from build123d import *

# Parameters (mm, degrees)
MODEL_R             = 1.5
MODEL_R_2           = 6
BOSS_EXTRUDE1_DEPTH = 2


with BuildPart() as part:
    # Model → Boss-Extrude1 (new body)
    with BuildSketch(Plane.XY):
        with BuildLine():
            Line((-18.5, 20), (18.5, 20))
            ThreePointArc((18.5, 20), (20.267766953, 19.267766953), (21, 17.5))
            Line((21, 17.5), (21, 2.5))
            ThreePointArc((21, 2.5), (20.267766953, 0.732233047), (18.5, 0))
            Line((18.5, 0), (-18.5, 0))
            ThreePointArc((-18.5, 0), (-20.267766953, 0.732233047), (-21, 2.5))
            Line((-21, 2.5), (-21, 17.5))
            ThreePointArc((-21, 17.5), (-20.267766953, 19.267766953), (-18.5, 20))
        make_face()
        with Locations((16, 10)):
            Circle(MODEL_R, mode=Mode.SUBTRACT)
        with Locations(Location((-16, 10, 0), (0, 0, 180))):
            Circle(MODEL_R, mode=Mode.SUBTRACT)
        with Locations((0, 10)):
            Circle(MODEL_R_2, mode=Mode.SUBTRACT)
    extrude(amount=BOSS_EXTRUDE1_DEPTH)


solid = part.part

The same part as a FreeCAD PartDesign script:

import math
import FreeCAD as App
import Part
import Sketcher

V = App.Vector

doc = App.newDocument("Part")
body = doc.addObject("PartDesign::Body", "Body")

sketch1 = body.newObject("Sketcher::SketchObject", "Sketch")
sketch1.AttachmentSupport = (doc.getObject("XY_Plane"), [""])
sketch1.MapMode = "FlatFace"
sketch1.addGeometry(Part.LineSegment(V(18.5, 20, 0), V(-18.5, 20, 0)), False)
sketch1.addGeometry(Part.ArcOfCircle(Part.Circle(V(-18.5, 17.5, 0), V(0, 0, 1), 2.5), math.radians(90), math.radians(180)), False)
sketch1.addGeometry(Part.LineSegment(V(-21, 17.5, 0), V(-21, 2.5, 0)), False)
sketch1.addGeometry(Part.ArcOfCircle(Part.Circle(V(-18.5, 2.5, 0), V(0, 0, 1), 2.5), math.radians(180), math.radians(270)), False)
sketch1.addGeometry(Part.LineSegment(V(-18.5, 0, 0), V(18.5, 0, 0)), False)
sketch1.addGeometry(Part.ArcOfCircle(Part.Circle(V(18.5, 2.5, 0), V(0, 0, 1), 2.5), math.radians(-90), math.radians(0)), False)
sketch1.addGeometry(Part.LineSegment(V(21, 2.5, 0), V(21, 17.5, 0)), False)
sketch1.addGeometry(Part.ArcOfCircle(Part.Circle(V(18.5, 17.5, 0), V(0, 0, 1), 2.5), math.radians(0), math.radians(90)), False)
sketch1.addGeometry(Part.Circle(V(16, 10, 0), V(0, 0, 1), 1.5), False)
sketch1.addGeometry(Part.Circle(V(0, 10, 0), V(0, 0, 1), 6), False)
sketch1.addGeometry(Part.Circle(V(-16, 10, 0), V(0, 0, 1), 1.5), False)
sketch1.addConstraint(Sketcher.Constraint("Tangent", 0, 2, 1, 1))
sketch1.addConstraint(Sketcher.Constraint("Tangent", 1, 2, 2, 1))
sketch1.addConstraint(Sketcher.Constraint("Tangent", 2, 2, 3, 1))
sketch1.addConstraint(Sketcher.Constraint("Tangent", 3, 2, 4, 1))
sketch1.addConstraint(Sketcher.Constraint("Tangent", 4, 2, 5, 1))
sketch1.addConstraint(Sketcher.Constraint("Tangent", 5, 2, 6, 1))
sketch1.addConstraint(Sketcher.Constraint("Tangent", 6, 2, 7, 1))
sketch1.addConstraint(Sketcher.Constraint("Tangent", 7, 2, 0, 1))
sketch1.addConstraint(Sketcher.Constraint("Horizontal", 0))
sketch1.addConstraint(Sketcher.Constraint("Vertical", 2))
sketch1.addConstraint(Sketcher.Constraint("Horizontal", 4))
sketch1.addConstraint(Sketcher.Constraint("Vertical", 6))
sketch1.addConstraint(Sketcher.Constraint("Equal", 1, 3))
sketch1.addConstraint(Sketcher.Constraint("Equal", 3, 5))
sketch1.addConstraint(Sketcher.Constraint("Equal", 5, 7))
sketch1.addConstraint(Sketcher.Constraint("Equal", 8, 10))
sketch1.addConstraint(Sketcher.Constraint("Symmetric", 3, 2, 4, 2, -1, 1))
sketch1.addConstraint(Sketcher.Constraint("Symmetric", 8, 3, 10, 3, -2))
sketch1.addConstraint(Sketcher.Constraint("PointOnObject", 9, 3, -2))
sketch1.addConstraint(Sketcher.Constraint("Horizontal", 8, 3, 9, 3))
sketch1.addConstraint(Sketcher.Constraint("Diameter", 8, 3.0))
sketch1.addConstraint(Sketcher.Constraint("Diameter", 9, 12.0))
sketch1.addConstraint(Sketcher.Constraint("Radius", 1, 2.5))
sketch1.addConstraint(Sketcher.Constraint("DistanceX", 0, 2, 0, 1, 37.0))
sketch1.addConstraint(Sketcher.Constraint("DistanceY", 2, 2, 2, 1, 15.0))
sketch1.addConstraint(Sketcher.Constraint("DistanceX", -1, 1, 8, 3, 16.0))
sketch1.addConstraint(Sketcher.Constraint("DistanceY", -1, 1, 8, 3, 10.0))
pad1 = body.newObject("PartDesign::Pad", "Pad")
pad1.Profile = sketch1
pad1.Length = 2

doc.recompute()
